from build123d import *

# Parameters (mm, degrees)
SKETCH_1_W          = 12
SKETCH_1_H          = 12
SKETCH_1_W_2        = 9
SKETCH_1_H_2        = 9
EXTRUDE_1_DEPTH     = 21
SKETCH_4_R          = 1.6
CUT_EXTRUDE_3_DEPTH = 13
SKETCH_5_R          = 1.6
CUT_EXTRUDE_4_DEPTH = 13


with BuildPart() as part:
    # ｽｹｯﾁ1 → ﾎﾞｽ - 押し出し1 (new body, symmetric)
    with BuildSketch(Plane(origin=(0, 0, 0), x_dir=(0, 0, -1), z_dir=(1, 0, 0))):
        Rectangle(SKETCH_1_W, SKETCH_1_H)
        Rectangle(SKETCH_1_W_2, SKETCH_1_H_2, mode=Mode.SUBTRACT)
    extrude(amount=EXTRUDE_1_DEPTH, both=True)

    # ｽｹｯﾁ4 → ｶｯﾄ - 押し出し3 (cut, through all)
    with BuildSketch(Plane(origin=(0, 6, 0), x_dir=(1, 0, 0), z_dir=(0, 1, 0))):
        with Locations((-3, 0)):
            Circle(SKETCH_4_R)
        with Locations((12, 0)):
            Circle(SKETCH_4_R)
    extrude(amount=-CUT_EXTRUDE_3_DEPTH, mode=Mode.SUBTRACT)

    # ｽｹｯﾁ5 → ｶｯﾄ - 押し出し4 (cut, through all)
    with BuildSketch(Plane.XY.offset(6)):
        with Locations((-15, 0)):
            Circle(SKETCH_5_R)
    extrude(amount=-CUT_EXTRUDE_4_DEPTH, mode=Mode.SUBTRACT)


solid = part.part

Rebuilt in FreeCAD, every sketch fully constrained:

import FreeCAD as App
import Part
import Sketcher
Q = App.Units.Quantity

doc = App.newDocument("Part")
params = doc.addObject("Spreadsheet::Sheet", "Params")
for row, (alias, value) in enumerate([
    ("sketch1_width", "12 mm"),
    ("sketch1_width2", "9 mm"),
    ("pad1_length", "42 mm"),
    ("sketch2_diameter", "3.2 mm"),
    ("sketch3_diameter", "3.2 mm"),
], start=1):
    params.set(f"A{row}", alias)
    params.set(f"B{row}", "=" + value)
    params.setAlias(f"B{row}", alias)

body = doc.addObject("PartDesign::Body", "Body")

# Sketch on YZ plane
sketch1 = doc.addObject("Sketcher::SketchObject", "Sketch")
body.addObject(sketch1)
sketch1.AttachmentSupport = (doc.YZ_Plane, [""])
sketch1.MapMode = "FlatFace"
sketch1.addGeometry([
    Part.LineSegment(App.Vector(6, 6, 0), App.Vector(-6, 6, 0)),  # 0
    Part.LineSegment(App.Vector(-6, 6, 0), App.Vector(-6, -6, 0)),  # 1
    Part.LineSegment(App.Vector(-6, -6, 0), App.Vector(6, -6, 0)),  # 2
    Part.LineSegment(App.Vector(6, -6, 0), App.Vector(6, 6, 0)),  # 3
    Part.LineSegment(App.Vector(-4, -4, 0), App.Vector(-4, 4, 0)),  # 4
    Part.LineSegment(App.Vector(-4, 4, 0), App.Vector(4, 4, 0)),  # 5
    Part.LineSegment(App.Vector(4, 4, 0), App.Vector(4, -4, 0)),  # 6
    Part.LineSegment(App.Vector(4, -4, 0), App.Vector(-4, -4, 0)),  # 7
], False)
sketch1.addConstraint([
    Sketcher.Constraint("Coincident", 0, 2, 1, 1),
    Sketcher.Constraint("Coincident", 1, 2, 2, 1),
    Sketcher.Constraint("Coincident", 2, 2, 3, 1),
    Sketcher.Constraint("Coincident", 3, 2, 0, 1),
    Sketcher.Constraint("Coincident", 4, 2, 5, 1),
    Sketcher.Constraint("Coincident", 5, 2, 6, 1),
    Sketcher.Constraint("Coincident", 6, 2, 7, 1),
    Sketcher.Constraint("Coincident", 7, 2, 4, 1),
    Sketcher.Constraint("Horizontal", 0),
    Sketcher.Constraint("Vertical", 1),
    Sketcher.Constraint("Horizontal", 2),
    Sketcher.Constraint("Vertical", 3),
    Sketcher.Constraint("Vertical", 4),
    Sketcher.Constraint("Horizontal", 5),
    Sketcher.Constraint("Vertical", 6),
    Sketcher.Constraint("Horizontal", 7),
    Sketcher.Constraint("Symmetric", 0, 2, 2, 2, -1, 1),
    Sketcher.Constraint("Symmetric", 4, 2, 6, 2, -1, 1),
    Sketcher.Constraint("Equal", 2, 1),
    Sketcher.Constraint("Equal", 7, 4),
    Sketcher.Constraint("DistanceX", 0, 2, 0, 1, Q("12 mm")),
    Sketcher.Constraint("DistanceX", 5, 1, 5, 2, Q("9 mm")),
])
sketch1.setExpression("Constraints[20]", "Params.sketch1_width")
sketch1.setExpression("Constraints[21]", "Params.sketch1_width2")
pad1 = doc.addObject("PartDesign::Pad", "Pad")
body.addObject(pad1)
pad1.Profile = sketch1
pad1.setExpression("Length", "Params.pad1_length")
pad1.Midplane = True

# Sketch on XZ plane
sketch2 = doc.addObject("Sketcher::SketchObject", "Sketch001")
body.addObject(sketch2)
sketch2.AttachmentSupport = (doc.XZ_Plane, [""])
sketch2.MapMode = "FlatFace"
sketch2.AttachmentOffset = App.Placement(App.Vector(0, 0, -6), App.Rotation())
sketch2.addGeometry([
    Part.Circle(App.Vector(-3, 0, 0), App.Vector(0, 0, 1), 1.6),
    Part.Circle(App.Vector(12, 0, 0), App.Vector(0, 0, 1), 1.6),
], False)
sketch2.addConstraint([
    Sketcher.Constraint("Equal", 0, 1),
    Sketcher.Constraint("PointOnObject", 0, 3, -1),
    Sketcher.Constraint("PointOnObject", 1, 3, -1),
    Sketcher.Constraint("Diameter", 0, Q("3.2 mm")),
    Sketcher.Constraint("DistanceX", 0, 3, -1, 1, Q("3 mm")),
    Sketcher.Constraint("DistanceX", -1, 1, 1, 3, Q("12 mm")),
])
sketch2.setExpression("Constraints[3]", "Params.sketch2_diameter")
pocket1 = doc.addObject("PartDesign::Pocket", "Pocket")
body.addObject(pocket1)
pocket1.Profile = sketch2
pocket1.Type = "ThroughAll"
pocket1.Reversed = True

# Sketch on XY plane
sketch3 = doc.addObject("Sketcher::SketchObject", "Sketch002")
body.addObject(sketch3)
sketch3.AttachmentSupport = (doc.XY_Plane, [""])
sketch3.MapMode = "FlatFace"
sketch3.AttachmentOffset = App.Placement(App.Vector(0, 0, 6), App.Rotation())
sketch3.addGeometry(Part.Circle(App.Vector(-15, 0, 0), App.Vector(0, 0, 1), 1.6), False)
sketch3.addConstraint([
    Sketcher.Constraint("PointOnObject", 0, 3, -1),
    Sketcher.Constraint("Diameter", 0, Q("3.2 mm")),
    Sketcher.Constraint("DistanceX", 0, 3, -1, 1, Q("15 mm")),
])
sketch3.setExpression("Constraints[1]", "Params.sketch3_diameter")
pocket2 = doc.addObject("PartDesign::Pocket", "Pocket001")
body.addObject(pocket2)
pocket2.Profile = sketch3
pocket2.Type = "ThroughAll"

doc.recompute()
